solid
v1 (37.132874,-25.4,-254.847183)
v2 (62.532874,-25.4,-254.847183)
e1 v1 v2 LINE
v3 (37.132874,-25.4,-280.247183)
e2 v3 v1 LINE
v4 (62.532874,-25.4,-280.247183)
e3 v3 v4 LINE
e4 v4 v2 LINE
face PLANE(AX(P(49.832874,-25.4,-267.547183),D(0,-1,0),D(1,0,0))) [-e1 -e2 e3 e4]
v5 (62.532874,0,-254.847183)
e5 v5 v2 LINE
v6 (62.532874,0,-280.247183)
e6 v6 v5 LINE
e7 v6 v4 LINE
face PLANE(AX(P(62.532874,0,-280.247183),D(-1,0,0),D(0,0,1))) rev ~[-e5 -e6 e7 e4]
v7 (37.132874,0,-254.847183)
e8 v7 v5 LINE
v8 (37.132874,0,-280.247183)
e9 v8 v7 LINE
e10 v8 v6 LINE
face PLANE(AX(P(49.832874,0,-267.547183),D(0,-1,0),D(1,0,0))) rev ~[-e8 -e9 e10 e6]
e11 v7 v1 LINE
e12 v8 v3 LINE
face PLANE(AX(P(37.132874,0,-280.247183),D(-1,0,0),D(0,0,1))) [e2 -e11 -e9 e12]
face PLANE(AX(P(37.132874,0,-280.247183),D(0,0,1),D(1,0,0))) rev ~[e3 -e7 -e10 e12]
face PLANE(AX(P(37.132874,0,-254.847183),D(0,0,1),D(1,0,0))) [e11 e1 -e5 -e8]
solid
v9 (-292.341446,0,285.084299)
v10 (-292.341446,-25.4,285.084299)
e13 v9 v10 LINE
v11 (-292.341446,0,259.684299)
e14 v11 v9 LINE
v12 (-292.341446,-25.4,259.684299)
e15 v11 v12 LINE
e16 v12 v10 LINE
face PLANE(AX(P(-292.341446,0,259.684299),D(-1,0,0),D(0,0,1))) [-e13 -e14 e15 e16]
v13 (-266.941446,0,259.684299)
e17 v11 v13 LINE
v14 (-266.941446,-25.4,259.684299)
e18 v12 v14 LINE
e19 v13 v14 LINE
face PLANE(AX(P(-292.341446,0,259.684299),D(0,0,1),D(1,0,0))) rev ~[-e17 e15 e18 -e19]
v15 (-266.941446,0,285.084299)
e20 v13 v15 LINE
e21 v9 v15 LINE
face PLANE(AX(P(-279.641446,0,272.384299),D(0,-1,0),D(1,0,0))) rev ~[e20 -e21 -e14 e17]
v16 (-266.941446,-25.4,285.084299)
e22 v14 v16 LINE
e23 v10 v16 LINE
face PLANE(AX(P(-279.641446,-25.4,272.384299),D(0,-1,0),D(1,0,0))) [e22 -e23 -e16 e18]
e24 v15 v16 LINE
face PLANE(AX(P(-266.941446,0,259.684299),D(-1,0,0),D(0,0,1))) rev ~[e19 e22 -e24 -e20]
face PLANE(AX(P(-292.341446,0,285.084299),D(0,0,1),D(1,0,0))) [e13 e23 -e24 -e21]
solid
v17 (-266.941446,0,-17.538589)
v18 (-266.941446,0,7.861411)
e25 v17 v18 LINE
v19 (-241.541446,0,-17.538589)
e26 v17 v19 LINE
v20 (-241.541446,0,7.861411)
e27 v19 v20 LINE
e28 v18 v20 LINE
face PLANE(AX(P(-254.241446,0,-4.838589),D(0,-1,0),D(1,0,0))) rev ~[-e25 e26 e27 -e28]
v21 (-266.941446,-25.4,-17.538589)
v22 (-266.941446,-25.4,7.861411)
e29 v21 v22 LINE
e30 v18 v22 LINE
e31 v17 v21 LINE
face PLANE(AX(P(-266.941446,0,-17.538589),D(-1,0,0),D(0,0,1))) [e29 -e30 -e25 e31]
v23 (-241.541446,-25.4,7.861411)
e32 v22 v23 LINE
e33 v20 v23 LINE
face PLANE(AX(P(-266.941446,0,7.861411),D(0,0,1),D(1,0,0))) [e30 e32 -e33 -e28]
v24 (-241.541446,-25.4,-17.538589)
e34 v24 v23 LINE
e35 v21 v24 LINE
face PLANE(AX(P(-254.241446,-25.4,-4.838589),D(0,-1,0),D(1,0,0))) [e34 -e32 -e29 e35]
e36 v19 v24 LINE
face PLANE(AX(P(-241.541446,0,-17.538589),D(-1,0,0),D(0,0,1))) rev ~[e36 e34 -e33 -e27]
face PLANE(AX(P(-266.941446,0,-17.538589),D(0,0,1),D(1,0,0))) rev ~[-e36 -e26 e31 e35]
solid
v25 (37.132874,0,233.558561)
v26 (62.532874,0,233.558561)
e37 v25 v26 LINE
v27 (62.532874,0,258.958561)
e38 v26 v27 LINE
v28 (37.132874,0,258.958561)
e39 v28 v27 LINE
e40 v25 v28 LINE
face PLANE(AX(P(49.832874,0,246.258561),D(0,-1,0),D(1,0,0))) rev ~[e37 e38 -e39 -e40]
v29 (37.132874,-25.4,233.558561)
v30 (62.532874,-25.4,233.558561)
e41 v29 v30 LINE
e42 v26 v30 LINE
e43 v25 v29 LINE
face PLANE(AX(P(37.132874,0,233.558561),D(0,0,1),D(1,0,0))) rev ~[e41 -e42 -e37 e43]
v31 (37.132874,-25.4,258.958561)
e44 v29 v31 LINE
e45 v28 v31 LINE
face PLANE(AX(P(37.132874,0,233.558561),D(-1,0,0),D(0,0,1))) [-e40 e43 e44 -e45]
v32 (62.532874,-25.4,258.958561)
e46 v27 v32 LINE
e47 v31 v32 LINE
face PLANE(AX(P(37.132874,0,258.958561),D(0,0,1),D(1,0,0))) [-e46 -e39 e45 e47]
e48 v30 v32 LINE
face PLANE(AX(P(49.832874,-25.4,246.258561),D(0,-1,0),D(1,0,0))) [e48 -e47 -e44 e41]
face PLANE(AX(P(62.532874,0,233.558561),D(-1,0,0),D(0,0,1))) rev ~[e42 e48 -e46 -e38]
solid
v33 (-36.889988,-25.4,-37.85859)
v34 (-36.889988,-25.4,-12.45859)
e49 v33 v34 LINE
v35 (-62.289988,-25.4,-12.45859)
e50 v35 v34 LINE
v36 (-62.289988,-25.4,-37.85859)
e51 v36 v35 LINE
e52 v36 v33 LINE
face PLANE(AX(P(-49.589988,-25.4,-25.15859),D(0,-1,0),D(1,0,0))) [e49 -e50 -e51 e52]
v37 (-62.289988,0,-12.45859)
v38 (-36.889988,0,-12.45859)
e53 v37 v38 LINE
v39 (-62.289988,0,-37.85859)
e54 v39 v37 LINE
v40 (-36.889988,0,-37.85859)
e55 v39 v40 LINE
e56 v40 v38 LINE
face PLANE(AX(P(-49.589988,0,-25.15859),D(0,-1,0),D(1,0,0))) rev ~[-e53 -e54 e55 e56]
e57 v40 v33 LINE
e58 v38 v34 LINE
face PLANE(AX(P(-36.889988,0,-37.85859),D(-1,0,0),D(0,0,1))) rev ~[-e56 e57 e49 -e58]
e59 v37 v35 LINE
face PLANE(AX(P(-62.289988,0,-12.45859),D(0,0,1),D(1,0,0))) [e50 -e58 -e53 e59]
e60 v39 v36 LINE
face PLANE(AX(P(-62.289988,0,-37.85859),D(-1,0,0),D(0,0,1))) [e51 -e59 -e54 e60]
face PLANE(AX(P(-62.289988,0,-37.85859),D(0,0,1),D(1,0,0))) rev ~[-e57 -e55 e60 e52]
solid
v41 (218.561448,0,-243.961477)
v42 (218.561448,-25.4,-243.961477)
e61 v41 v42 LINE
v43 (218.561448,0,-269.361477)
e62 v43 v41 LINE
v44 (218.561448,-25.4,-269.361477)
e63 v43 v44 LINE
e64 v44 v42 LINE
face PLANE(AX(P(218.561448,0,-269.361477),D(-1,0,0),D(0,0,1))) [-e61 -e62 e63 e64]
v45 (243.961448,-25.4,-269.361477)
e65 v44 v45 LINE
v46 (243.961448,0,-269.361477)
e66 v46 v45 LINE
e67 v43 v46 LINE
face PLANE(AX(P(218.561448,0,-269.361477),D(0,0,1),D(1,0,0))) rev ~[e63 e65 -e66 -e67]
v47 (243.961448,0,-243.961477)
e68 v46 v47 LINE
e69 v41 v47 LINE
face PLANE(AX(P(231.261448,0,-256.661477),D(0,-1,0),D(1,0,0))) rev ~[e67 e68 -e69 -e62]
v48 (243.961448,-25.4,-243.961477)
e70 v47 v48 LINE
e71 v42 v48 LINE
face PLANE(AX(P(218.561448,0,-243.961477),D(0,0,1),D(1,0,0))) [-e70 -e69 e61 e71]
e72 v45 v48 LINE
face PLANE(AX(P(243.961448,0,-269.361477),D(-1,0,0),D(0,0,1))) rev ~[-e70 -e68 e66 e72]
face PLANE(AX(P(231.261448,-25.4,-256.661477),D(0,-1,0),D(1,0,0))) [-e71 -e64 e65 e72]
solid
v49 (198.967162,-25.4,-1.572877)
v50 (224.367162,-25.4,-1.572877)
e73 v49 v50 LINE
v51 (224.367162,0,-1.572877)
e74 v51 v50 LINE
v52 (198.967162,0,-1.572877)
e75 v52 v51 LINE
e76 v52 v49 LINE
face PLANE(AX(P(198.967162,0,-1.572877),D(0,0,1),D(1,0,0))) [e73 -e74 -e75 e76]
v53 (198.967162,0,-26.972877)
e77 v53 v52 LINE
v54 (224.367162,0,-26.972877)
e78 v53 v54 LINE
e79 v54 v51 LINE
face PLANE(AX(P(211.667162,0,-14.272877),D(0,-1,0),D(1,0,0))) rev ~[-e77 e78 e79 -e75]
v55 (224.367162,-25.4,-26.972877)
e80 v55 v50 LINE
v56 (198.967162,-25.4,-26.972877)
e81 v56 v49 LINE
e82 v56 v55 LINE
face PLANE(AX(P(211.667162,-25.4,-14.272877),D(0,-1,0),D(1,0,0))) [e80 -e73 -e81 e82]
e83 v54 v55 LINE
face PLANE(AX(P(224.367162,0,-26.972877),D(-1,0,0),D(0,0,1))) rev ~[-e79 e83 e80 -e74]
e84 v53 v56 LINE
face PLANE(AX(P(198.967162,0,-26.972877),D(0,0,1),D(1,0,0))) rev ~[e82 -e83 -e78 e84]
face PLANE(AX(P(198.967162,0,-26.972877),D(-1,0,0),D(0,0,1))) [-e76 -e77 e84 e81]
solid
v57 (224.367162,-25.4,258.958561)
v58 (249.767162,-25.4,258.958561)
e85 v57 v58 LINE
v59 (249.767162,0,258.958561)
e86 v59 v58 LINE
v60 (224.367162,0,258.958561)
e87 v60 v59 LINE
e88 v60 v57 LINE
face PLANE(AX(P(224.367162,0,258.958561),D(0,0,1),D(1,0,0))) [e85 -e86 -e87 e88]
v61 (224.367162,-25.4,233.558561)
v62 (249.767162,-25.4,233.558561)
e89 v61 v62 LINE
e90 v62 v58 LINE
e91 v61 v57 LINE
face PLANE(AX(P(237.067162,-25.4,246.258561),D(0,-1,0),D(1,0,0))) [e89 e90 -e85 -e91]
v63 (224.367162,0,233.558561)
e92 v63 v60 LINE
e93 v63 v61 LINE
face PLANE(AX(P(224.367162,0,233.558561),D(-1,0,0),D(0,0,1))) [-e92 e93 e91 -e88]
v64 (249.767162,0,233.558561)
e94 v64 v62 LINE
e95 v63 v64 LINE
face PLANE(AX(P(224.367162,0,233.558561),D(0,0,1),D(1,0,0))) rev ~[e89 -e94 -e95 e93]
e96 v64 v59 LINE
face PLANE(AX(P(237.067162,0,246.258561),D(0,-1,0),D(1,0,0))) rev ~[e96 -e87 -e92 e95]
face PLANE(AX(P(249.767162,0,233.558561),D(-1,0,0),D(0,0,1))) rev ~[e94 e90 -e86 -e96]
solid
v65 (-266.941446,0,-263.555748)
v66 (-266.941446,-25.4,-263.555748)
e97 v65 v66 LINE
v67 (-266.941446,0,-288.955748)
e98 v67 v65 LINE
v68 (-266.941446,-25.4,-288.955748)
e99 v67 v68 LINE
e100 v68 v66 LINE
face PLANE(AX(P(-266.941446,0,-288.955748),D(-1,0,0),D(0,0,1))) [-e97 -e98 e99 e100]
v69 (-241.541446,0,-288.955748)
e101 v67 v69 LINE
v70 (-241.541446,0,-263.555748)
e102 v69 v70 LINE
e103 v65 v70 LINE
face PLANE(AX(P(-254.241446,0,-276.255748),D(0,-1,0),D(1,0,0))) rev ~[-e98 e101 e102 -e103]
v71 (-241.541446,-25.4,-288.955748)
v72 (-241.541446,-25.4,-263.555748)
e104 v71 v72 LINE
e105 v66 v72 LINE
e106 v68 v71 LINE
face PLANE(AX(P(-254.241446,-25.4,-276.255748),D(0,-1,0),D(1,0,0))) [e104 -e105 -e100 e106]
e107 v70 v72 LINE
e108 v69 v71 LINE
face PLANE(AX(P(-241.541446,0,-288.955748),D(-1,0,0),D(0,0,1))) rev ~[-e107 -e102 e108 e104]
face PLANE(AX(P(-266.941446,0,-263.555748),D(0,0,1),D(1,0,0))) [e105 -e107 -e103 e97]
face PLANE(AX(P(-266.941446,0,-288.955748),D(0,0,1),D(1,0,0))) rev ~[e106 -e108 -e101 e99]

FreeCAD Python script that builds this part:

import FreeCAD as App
import Part
import Sketcher
Q = App.Units.Quantity


def add_polygon(sketch, points):
    """Adds a closed chain of lines whose ends are joined by coincident constraints."""
    first, n = sketch.GeometryCount, len(points)
    for a, b in zip(points, points[1:] + points[:1]):
        sketch.addGeometry(Part.LineSegment(App.Vector(*a, 0), App.Vector(*b, 0)), False)
    for i in range(n):
        sketch.addConstraint(Sketcher.Constraint("Coincident", first + i, 2, first + (i + 1) % n, 1))

doc = App.newDocument("Part")
params = doc.addObject("Spreadsheet::Sheet", "Params")
for row, (alias, value) in enumerate([
    ("sketch1_width", "1 in"),
    ("pad1_length", "1 in"),
], start=1):
    params.set(f"A{row}", alias)
    params.set(f"B{row}", "=" + value)
    params.setAlias(f"B{row}", alias)

body = doc.addObject("PartDesign::Body", "Body")
body.AllowCompound = True

# Sketch on XZ plane
sketch1 = body.newObject("Sketcher::SketchObject", "Sketch")
sketch1.AttachmentSupport = (doc.getObject("XZ_Plane"), [""])
sketch1.MapMode = "FlatFace"
add_polygon(sketch1, [(-292.341446, 285.084299), (-292.341446, 259.684299), (-266.941446, 259.684299), (-266.941446, 285.084299)])  # lines 0-3
add_polygon(sketch1, [(37.132874, 258.958561), (37.132874, 233.558561), (62.532874, 233.558561), (62.532874, 258.958561)])  # lines 4-7
add_polygon(sketch1, [(224.367162, 258.958561), (224.367162, 233.558561), (249.767162, 233.558561), (249.767162, 258.958561)])  # lines 8-11
add_polygon(sketch1, [(-266.941446, 7.861411), (-266.941446, -17.538589), (-241.541446, -17.538589), (-241.541446, 7.861411)])  # lines 12-15
add_polygon(sketch1, [(-62.289988, -12.45859), (-62.289988, -37.85859), (-36.889988, -37.85859), (-36.889988, -12.45859)])  # lines 16-19
add_polygon(sketch1, [(198.967162, -1.572877), (198.967162, -26.972877), (224.367162, -26.972877), (224.367162, -1.572877)])  # lines 20-23
add_polygon(sketch1, [(-266.941446, -263.555748), (-266.941446, -288.955748), (-241.541446, -288.955748), (-241.541446, -263.555748)])  # lines 24-27
add_polygon(sketch1, [(37.132874, -254.847183), (37.132874, -280.247183), (62.532874, -280.247183), (62.532874, -254.847183)])  # lines 28-31
add_polygon(sketch1, [(218.561448, -243.961477), (218.561448, -269.361477), (243.961448, -269.361477), (243.961448, -243.961477)])  # lines 32-35
sketch1.addConstraint([
    Sketcher.Constraint("Vertical", 0),
    Sketcher.Constraint("Horizontal", 1),
    Sketcher.Constraint("Vertical", 2),
    Sketcher.Constraint("Horizontal", 3),
    Sketcher.Constraint("Vertical", 4),
    Sketcher.Constraint("Horizontal", 5),
    Sketcher.Constraint("Vertical", 6),
    Sketcher.Constraint("Horizontal", 7),
    Sketcher.Constraint("Vertical", 8),
    Sketcher.Constraint("Horizontal", 9),
    Sketcher.Constraint("Vertical", 10),
    Sketcher.Constraint("Horizontal", 11),
    Sketcher.Constraint("Vertical", 12),
    Sketcher.Constraint("Horizontal", 13),
    Sketcher.Constraint("Vertical", 14),
    Sketcher.Constraint("Horizontal", 15),
    Sketcher.Constraint("Vertical", 16),
    Sketcher.Constraint("Horizontal", 17),
    Sketcher.Constraint("Vertical", 18),
    Sketcher.Constraint("Horizontal", 19),
    Sketcher.Constraint("Vertical", 20),
    Sketcher.Constraint("Horizontal", 21),
    Sketcher.Constraint("Vertical", 22),
    Sketcher.Constraint("Horizontal", 23),
    Sketcher.Constraint("Vertical", 24),
    Sketcher.Constraint("Horizontal", 25),
    Sketcher.Constraint("Vertical", 26),
    Sketcher.Constraint("Horizontal", 27),
    Sketcher.Constraint("Vertical", 28),
    Sketcher.Constraint("Horizontal", 29),
    Sketcher.Constraint("Vertical", 30),
    Sketcher.Constraint("Horizontal", 31),
    Sketcher.Constraint("Vertical", 32),
    Sketcher.Constraint("Horizontal", 33),
    Sketcher.Constraint("Vertical", 34),
    Sketcher.Constraint("Horizontal", 35),
    Sketcher.Constraint("Horizontal", 5, 2, 8, 2),
    Sketcher.Constraint("Horizontal", 7, 2, 10, 2),
    Sketcher.Constraint("Vertical", 2, 2, 12, 2),
    Sketcher.Constraint("Vertical", 11, 2, 21, 2),
    Sketcher.Constraint("Vertical", 15, 2, 24, 2),
    Sketcher.Constraint("Vertical", 14, 2, 25, 2),
    Sketcher.Constraint("Vertical", 7, 2, 28, 2),
    Sketcher.Constraint("Vertical", 6, 2, 29, 2),
    Sketcher.Constraint("Equal", 3, 5),
    Sketcher.Constraint("Equal", 7, 9),
    Sketcher.Constraint("Equal", 11, 13),
    Sketcher.Constraint("Equal", 15, 17),
    Sketcher.Constraint("Equal", 19, 21),
    Sketcher.Constraint("Equal", 31, 33),
    Sketcher.Constraint("Equal", 35, 0),
    Sketcher.Constraint("Equal", 2, 4),
    Sketcher.Constraint("Equal", 10, 12),
    Sketcher.Constraint("Equal", 14, 16),
    Sketcher.Constraint("Equal", 18, 20),
    Sketcher.Constraint("Equal", 22, 24),
    Sketcher.Constraint("Equal", 26, 28),
    Sketcher.Constraint("Equal", 30, 32),
    Sketcher.Constraint("DistanceX", 1, 1, 1, 2, Q("1 in")),
    Sketcher.Constraint("DistanceY", 16, 2, 13, 2, Q("0.8 in")),
    Sketcher.Constraint("DistanceY", -1, 1, 0, 2, Q("259.684299 mm")),
    Sketcher.Constraint("DistanceY", 32, 2, 21, 2, Q("242.3886 mm")),
    Sketcher.Constraint("DistanceY", -1, 1, 4, 2, Q("233.558561 mm")),
    Sketcher.Constraint("DistanceX", -1, 1, 8, 2, Q("224.367162 mm")),
    Sketcher.Constraint("DistanceY", 12, 2, -1, 1, Q("17.538589 mm")),
    Sketcher.Constraint("DistanceX", 17, 2, -1, 1, Q("36.889988 mm")),
    Sketcher.Constraint("DistanceY", 24, 2, -1, 1, Q("288.955748 mm")),
    Sketcher.Constraint("DistanceX", -1, 1, 32, 2, Q("218.561448 mm")),
    Sketcher.Constraint("DistanceX", 1, 2, 4, 2, Q("304.07432 mm")),
    Sketcher.Constraint("DistanceX", 5, 2, 8, 2, Q("161.834288 mm")),
    Sketcher.Constraint("DistanceY", 20, 2, 8, 2, Q("260.531438 mm")),
    Sketcher.Constraint("DistanceY", 28, 2, -1, 1, Q("280.247183 mm")),
])
sketch1.setExpression("Constraints[94]", "Params.sketch1_width")
pad1 = body.newObject("PartDesign::Pad", "Pad")
pad1.Profile = sketch1
pad1.setExpression("Length", "Params.pad1_length")

doc.recompute()
